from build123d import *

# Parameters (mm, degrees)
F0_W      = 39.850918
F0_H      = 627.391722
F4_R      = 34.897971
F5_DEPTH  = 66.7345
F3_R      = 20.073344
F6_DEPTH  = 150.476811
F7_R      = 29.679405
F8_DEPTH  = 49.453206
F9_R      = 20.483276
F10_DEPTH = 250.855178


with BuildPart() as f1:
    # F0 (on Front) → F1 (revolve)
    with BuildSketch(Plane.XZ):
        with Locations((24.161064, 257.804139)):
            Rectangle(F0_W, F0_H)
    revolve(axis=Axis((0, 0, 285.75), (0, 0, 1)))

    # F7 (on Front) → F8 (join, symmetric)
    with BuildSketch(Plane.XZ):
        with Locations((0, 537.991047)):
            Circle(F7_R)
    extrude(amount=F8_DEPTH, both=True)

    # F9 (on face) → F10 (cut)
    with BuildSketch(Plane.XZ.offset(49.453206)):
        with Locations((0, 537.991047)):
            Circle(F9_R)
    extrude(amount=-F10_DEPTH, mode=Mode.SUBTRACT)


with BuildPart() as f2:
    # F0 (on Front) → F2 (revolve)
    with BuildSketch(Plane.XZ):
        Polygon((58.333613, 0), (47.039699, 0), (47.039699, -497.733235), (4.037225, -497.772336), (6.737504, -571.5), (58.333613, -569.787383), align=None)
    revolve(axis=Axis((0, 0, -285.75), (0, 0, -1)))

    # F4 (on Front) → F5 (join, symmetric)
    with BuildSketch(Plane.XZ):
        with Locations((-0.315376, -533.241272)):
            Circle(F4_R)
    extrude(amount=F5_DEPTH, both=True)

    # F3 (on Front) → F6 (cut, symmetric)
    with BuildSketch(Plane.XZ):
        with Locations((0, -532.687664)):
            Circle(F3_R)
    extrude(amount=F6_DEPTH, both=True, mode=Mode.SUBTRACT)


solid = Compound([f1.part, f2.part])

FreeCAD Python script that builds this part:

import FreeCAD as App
import Part
import Sketcher

V = App.Vector

doc = App.newDocument("Part")
body = doc.addObject("PartDesign::Body", "Body")

# Sketch on XZ plane
sketch1 = body.newObject("Sketcher::SketchObject", "Sketch")
sketch1.AttachmentSupport = (doc.getObject("XZ_Plane"), [""])
sketch1.MapMode = "FlatFace"
sketch1.addGeometry(Part.LineSegment(V(4.235605, 571.5, 0), V(4.235605, -55.891722, 0)), False)
sketch1.addGeometry(Part.LineSegment(V(4.235605, -55.891722, 0), V(44.086523, -55.891722, 0)), False)
sketch1.addGeometry(Part.LineSegment(V(44.086523, -55.891722, 0), V(44.086523, 571.5, 0)), False)
sketch1.addGeometry(Part.LineSegment(V(44.086523, 571.5, 0), V(4.235605, 571.5, 0)), False)
sketch1.addConstraint(Sketcher.Constraint("Coincident", 0, 2, 1, 1))
sketch1.addConstraint(Sketcher.Constraint("Coincident", 1, 2, 2, 1))
sketch1.addConstraint(Sketcher.Constraint("Coincident", 2, 2, 3, 1))
sketch1.addConstraint(Sketcher.Constraint("Coincident", 3, 2, 0, 1))
sketch1.addConstraint(Sketcher.Constraint("Vertical", 0))
sketch1.addConstraint(Sketcher.Constraint("Horizontal", 1))
sketch1.addConstraint(Sketcher.Constraint("Vertical", 2))
sketch1.addConstraint(Sketcher.Constraint("Horizontal", 3))
sketch1.addConstraint(Sketcher.Constraint("DistanceY", -1, 1, 2, 2, 571.5))
sketch1.addConstraint(Sketcher.Constraint("DistanceY", 0, 2, 0, 1, 627.391722))
sketch1.addConstraint(Sketcher.Constraint("DistanceX", 1, 1, 1, 2, 39.850918))
sketch1.addConstraint(Sketcher.Constraint("DistanceX", -1, 1, 0, 2, 4.235605))
revolution = body.newObject("PartDesign::Revolution", "Revolution")
revolution.Profile = sketch1
revolution.ReferenceAxis = (sketch1, ["V_Axis"])
revolution.Angle = 360

# Sketch on XZ plane
sketch2 = body.newObject("Sketcher::SketchObject", "Sketch001")
sketch2.AttachmentSupport = (doc.getObject("XZ_Plane"), [""])
sketch2.MapMode = "FlatFace"
sketch2.addGeometry(Part.Circle(V(0, 537.991047, 0), V(0, 0, 1), 29.679405), False)
sketch2.addConstraint(Sketcher.Constraint("PointOnObject", 0, 3, -2))
sketch2.addConstraint(Sketcher.Constraint("Diameter", 0, 59.35881))
sketch2.addConstraint(Sketcher.Constraint("DistanceY", -1, 1, 0, 3, 537.991047))
pad1 = body.newObject("PartDesign::Pad", "Pad")
pad1.Profile = sketch2
pad1.Length = 98.906412
pad1.Midplane = True

# Sketch on XZ plane
sketch3 = body.newObject("Sketcher::SketchObject", "Sketch002")
sketch3.AttachmentSupport = (doc.getObject("XZ_Plane"), [""])
sketch3.MapMode = "FlatFace"
sketch3.AttachmentOffset = App.Placement(V(0, 0, 49.453206), App.Rotation())
sketch3.addGeometry(Part.Circle(V(0, 537.991047, 0), V(0, 0, 1), 20.483276), False)
sketch3.addConstraint(Sketcher.Constraint("PointOnObject", 0, 3, -2))
sketch3.addConstraint(Sketcher.Constraint("Diameter", 0, 40.966552))
sketch3.addConstraint(Sketcher.Constraint("DistanceY", -1, 1, 0, 3, 537.991047))
pocket1 = body.newObject("PartDesign::Pocket", "Pocket")
pocket1.Profile = sketch3
pocket1.Length = 250.855178
body2 = doc.addObject("PartDesign::Body", "Body001")

# Sketch on XZ plane
sketch4 = body2.newObject("Sketcher::SketchObject", "Sketch003")
sketch4.AttachmentSupport = (doc.getObject("XZ_Plane001"), [""])
sketch4.MapMode = "FlatFace"
sketch4.addGeometry(Part.LineSegment(V(58.333613, 0, 0), V(47.039699, 0, 0)), False)
sketch4.addGeometry(Part.LineSegment(V(47.039699, 0, 0), V(47.039699, -497.733235, 0)), False)
sketch4.addGeometry(Part.LineSegment(V(47.039699, -497.733235, 0), V(4.037225, -497.772336, 0)), False)
sketch4.addGeometry(Part.LineSegment(V(4.037225, -497.772336, 0), V(6.737504, -571.5, 0)), False)
sketch4.addGeometry(Part.LineSegment(V(6.737504, -571.5, 0), V(58.333613, -569.787383, 0)), False)
sketch4.addGeometry(Part.LineSegment(V(58.333613, -569.787383, 0), V(58.333613, 0, 0)), False)
sketch4.addConstraint(Sketcher.Constraint("Coincident", 0, 2, 1, 1))
sketch4.addConstraint(Sketcher.Constraint("Coincident", 1, 2, 2, 1))
sketch4.addConstraint(Sketcher.Constraint("Coincident", 2, 2, 3, 1))
sketch4.addConstraint(Sketcher.Constraint("Coincident", 3, 2, 4, 1))
sketch4.addConstraint(Sketcher.Constraint("Coincident", 4, 2, 5, 1))
sketch4.addConstraint(Sketcher.Constraint("Coincident", 5, 2, 0, 1))
sketch4.addConstraint(Sketcher.Constraint("Horizontal", 0))
sketch4.addConstraint(Sketcher.Constraint("Vertical", 1))
sketch4.addConstraint(Sketcher.Constraint("Vertical", 5))
sketch4.addConstraint(Sketcher.Constraint("PointOnObject", 0, 2, -1))
sketch4.addConstraint(Sketcher.Constraint("DistanceY", 3, 2, -1, 1, 571.5))
sketch4.addConstraint(Sketcher.Constraint("DistanceX", -1, 1, 0, 2, 47.039699))
sketch4.addConstraint(Sketcher.Constraint("DistanceY", 2, 2, 1, 2, 0.039101))
sketch4.addConstraint(Sketcher.Constraint("Distance", 2, 43.002492))
sketch4.addConstraint(Sketcher.Constraint("DistanceX", 0, 2, 0, 1, 11.293914))
sketch4.addConstraint(Sketcher.Constraint("DistanceY", 1, 2, 1, 1, 497.733235))
sketch4.addConstraint(Sketcher.Constraint("DistanceY", 5, 1, 5, 2, 569.787383))
sketch4.addConstraint(Sketcher.Constraint("DistanceX", 2, 2, 3, 2, 2.700279))
revolution2 = body2.newObject("PartDesign::Revolution", "Revolution001")
revolution2.Profile = sketch4
revolution2.ReferenceAxis = (sketch4, ["V_Axis"])
revolution2.Angle = 360

# Sketch on XZ plane
sketch5 = body2.newObject("Sketcher::SketchObject", "Sketch004")
sketch5.AttachmentSupport = (doc.getObject("XZ_Plane001"), [""])
sketch5.MapMode = "FlatFace"
sketch5.addGeometry(Part.Circle(V(-0.315376, -533.241272, 0), V(0, 0, 1), 34.897971), False)
sketch5.addConstraint(Sketcher.Constraint("Diameter", 0, 69.795942))
sketch5.addConstraint(Sketcher.Constraint("DistanceY", 0, 3, -1, 1, 533.241272))
sketch5.addConstraint(Sketcher.Constraint("DistanceX", 0, 3, -1, 1, 0.315376))
pad2 = body2.newObject("PartDesign::Pad", "Pad001")
pad2.Profile = sketch5
pad2.Length = 133.469
pad2.Midplane = True

# Sketch on XZ plane
sketch6 = body2.newObject("Sketcher::SketchObject", "Sketch005")
sketch6.AttachmentSupport = (doc.getObject("XZ_Plane001"), [""])
sketch6.MapMode = "FlatFace"
sketch6.addGeometry(Part.Circle(V(0, -532.687664, 0), V(0, 0, 1), 20.073344), False)
sketch6.addConstraint(Sketcher.Constraint("PointOnObject", 0, 3, -2))
sketch6.addConstraint(Sketcher.Constraint("Diameter", 0, 40.146688))
sketch6.addConstraint(Sketcher.Constraint("DistanceY", 0, 3, -1, 1, 532.687664))
pocket2 = body2.newObject("PartDesign::Pocket", "Pocket001")
pocket2.Profile = sketch6
pocket2.Length = 300.953622
pocket2.Midplane = True

doc.recompute()
